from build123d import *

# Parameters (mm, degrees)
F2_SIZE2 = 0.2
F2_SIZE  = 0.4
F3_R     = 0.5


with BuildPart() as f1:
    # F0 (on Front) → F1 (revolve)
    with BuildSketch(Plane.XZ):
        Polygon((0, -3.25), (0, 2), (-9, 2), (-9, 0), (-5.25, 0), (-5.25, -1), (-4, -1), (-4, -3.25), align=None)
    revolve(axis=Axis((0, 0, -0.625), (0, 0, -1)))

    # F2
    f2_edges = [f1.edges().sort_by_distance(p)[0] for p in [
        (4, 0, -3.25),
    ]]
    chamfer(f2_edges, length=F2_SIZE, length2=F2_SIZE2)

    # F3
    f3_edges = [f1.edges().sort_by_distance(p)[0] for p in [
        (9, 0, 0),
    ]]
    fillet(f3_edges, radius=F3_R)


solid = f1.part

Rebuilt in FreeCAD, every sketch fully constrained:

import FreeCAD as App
import Part
import Sketcher


def edges_at(feature, points):
    """Names of the edges that pass closest to the given points."""
    edges = feature.Shape.Edges
    near = lambda p: min(range(len(edges)), key=lambda i: edges[i].distToShape(Part.Vertex(*p))[0])
    return sorted({f"Edge{near(p) + 1}" for p in points})


def add_polygon(sketch, points):
    """Adds a closed chain of lines whose ends are joined by coincident constraints."""
    first, n = sketch.GeometryCount, len(points)
    for a, b in zip(points, points[1:] + points[:1]):
        sketch.addGeometry(Part.LineSegment(App.Vector(*a, 0), App.Vector(*b, 0)), False)
    for i in range(n):
        sketch.addConstraint(Sketcher.Constraint("Coincident", first + i, 2, first + (i + 1) % n, 1))

doc = App.newDocument("Part")
body = doc.addObject("PartDesign::Body", "Body")

sketch1 = body.newObject("Sketcher::SketchObject", "Sketch")
sketch1.AttachmentSupport = (doc.getObject("XZ_Plane"), [""])
sketch1.MapMode = "FlatFace"
add_polygon(sketch1, [(0, -3.25), (0, 2), (-9, 2), (-9, 0), (-5.25, 0), (-5.25, -1), (-4, -1), (-4, -3.25)])
sketch1.addConstraint([
    Sketcher.Constraint("Vertical", 0),
    Sketcher.Constraint("Horizontal", 1),
    Sketcher.Constraint("Vertical", 2),
    Sketcher.Constraint("Horizontal", 3),
    Sketcher.Constraint("Vertical", 4),
    Sketcher.Constraint("Horizontal", 5),
    Sketcher.Constraint("Vertical", 6),
    Sketcher.Constraint("Horizontal", 7),
    Sketcher.Constraint("PointOnObject", 0, 2, -2),
    Sketcher.Constraint("PointOnObject", 2, 2, -1),
    Sketcher.Constraint("DistanceX", 1, 2, 1, 1, 9.0),
    Sketcher.Constraint("DistanceX", 7, 1, 7, 2, 4.0),
    Sketcher.Constraint("DistanceY", 2, 2, 2, 1, 2.0),
    Sketcher.Constraint("DistanceY", 4, 2, 4, 1, 1.0),
    Sketcher.Constraint("DistanceX", 3, 1, 3, 2, 3.75),
    Sketcher.Constraint("DistanceY", 0, 1, 0, 2, 5.25),
])
revolution = body.newObject("PartDesign::Revolution", "Revolution")
revolution.Profile = sketch1
revolution.ReferenceAxis = (sketch1, ["V_Axis"])
revolution.Angle = 360
doc.recompute()

chamfer = body.newObject("PartDesign::Chamfer", "Chamfer")
chamfer.Base = (revolution, edges_at(revolution, [(4, 0, -3.25)]))
chamfer.ChamferType = "Two distances"
chamfer.Size = 0.4
chamfer.Size2 = 0.2
doc.recompute()

fillet = body.newObject("PartDesign::Fillet", "Fillet")
fillet.Base = (chamfer, edges_at(chamfer, [(9, 0, 0)]))
fillet.Radius = 0.5

doc.recompute()
